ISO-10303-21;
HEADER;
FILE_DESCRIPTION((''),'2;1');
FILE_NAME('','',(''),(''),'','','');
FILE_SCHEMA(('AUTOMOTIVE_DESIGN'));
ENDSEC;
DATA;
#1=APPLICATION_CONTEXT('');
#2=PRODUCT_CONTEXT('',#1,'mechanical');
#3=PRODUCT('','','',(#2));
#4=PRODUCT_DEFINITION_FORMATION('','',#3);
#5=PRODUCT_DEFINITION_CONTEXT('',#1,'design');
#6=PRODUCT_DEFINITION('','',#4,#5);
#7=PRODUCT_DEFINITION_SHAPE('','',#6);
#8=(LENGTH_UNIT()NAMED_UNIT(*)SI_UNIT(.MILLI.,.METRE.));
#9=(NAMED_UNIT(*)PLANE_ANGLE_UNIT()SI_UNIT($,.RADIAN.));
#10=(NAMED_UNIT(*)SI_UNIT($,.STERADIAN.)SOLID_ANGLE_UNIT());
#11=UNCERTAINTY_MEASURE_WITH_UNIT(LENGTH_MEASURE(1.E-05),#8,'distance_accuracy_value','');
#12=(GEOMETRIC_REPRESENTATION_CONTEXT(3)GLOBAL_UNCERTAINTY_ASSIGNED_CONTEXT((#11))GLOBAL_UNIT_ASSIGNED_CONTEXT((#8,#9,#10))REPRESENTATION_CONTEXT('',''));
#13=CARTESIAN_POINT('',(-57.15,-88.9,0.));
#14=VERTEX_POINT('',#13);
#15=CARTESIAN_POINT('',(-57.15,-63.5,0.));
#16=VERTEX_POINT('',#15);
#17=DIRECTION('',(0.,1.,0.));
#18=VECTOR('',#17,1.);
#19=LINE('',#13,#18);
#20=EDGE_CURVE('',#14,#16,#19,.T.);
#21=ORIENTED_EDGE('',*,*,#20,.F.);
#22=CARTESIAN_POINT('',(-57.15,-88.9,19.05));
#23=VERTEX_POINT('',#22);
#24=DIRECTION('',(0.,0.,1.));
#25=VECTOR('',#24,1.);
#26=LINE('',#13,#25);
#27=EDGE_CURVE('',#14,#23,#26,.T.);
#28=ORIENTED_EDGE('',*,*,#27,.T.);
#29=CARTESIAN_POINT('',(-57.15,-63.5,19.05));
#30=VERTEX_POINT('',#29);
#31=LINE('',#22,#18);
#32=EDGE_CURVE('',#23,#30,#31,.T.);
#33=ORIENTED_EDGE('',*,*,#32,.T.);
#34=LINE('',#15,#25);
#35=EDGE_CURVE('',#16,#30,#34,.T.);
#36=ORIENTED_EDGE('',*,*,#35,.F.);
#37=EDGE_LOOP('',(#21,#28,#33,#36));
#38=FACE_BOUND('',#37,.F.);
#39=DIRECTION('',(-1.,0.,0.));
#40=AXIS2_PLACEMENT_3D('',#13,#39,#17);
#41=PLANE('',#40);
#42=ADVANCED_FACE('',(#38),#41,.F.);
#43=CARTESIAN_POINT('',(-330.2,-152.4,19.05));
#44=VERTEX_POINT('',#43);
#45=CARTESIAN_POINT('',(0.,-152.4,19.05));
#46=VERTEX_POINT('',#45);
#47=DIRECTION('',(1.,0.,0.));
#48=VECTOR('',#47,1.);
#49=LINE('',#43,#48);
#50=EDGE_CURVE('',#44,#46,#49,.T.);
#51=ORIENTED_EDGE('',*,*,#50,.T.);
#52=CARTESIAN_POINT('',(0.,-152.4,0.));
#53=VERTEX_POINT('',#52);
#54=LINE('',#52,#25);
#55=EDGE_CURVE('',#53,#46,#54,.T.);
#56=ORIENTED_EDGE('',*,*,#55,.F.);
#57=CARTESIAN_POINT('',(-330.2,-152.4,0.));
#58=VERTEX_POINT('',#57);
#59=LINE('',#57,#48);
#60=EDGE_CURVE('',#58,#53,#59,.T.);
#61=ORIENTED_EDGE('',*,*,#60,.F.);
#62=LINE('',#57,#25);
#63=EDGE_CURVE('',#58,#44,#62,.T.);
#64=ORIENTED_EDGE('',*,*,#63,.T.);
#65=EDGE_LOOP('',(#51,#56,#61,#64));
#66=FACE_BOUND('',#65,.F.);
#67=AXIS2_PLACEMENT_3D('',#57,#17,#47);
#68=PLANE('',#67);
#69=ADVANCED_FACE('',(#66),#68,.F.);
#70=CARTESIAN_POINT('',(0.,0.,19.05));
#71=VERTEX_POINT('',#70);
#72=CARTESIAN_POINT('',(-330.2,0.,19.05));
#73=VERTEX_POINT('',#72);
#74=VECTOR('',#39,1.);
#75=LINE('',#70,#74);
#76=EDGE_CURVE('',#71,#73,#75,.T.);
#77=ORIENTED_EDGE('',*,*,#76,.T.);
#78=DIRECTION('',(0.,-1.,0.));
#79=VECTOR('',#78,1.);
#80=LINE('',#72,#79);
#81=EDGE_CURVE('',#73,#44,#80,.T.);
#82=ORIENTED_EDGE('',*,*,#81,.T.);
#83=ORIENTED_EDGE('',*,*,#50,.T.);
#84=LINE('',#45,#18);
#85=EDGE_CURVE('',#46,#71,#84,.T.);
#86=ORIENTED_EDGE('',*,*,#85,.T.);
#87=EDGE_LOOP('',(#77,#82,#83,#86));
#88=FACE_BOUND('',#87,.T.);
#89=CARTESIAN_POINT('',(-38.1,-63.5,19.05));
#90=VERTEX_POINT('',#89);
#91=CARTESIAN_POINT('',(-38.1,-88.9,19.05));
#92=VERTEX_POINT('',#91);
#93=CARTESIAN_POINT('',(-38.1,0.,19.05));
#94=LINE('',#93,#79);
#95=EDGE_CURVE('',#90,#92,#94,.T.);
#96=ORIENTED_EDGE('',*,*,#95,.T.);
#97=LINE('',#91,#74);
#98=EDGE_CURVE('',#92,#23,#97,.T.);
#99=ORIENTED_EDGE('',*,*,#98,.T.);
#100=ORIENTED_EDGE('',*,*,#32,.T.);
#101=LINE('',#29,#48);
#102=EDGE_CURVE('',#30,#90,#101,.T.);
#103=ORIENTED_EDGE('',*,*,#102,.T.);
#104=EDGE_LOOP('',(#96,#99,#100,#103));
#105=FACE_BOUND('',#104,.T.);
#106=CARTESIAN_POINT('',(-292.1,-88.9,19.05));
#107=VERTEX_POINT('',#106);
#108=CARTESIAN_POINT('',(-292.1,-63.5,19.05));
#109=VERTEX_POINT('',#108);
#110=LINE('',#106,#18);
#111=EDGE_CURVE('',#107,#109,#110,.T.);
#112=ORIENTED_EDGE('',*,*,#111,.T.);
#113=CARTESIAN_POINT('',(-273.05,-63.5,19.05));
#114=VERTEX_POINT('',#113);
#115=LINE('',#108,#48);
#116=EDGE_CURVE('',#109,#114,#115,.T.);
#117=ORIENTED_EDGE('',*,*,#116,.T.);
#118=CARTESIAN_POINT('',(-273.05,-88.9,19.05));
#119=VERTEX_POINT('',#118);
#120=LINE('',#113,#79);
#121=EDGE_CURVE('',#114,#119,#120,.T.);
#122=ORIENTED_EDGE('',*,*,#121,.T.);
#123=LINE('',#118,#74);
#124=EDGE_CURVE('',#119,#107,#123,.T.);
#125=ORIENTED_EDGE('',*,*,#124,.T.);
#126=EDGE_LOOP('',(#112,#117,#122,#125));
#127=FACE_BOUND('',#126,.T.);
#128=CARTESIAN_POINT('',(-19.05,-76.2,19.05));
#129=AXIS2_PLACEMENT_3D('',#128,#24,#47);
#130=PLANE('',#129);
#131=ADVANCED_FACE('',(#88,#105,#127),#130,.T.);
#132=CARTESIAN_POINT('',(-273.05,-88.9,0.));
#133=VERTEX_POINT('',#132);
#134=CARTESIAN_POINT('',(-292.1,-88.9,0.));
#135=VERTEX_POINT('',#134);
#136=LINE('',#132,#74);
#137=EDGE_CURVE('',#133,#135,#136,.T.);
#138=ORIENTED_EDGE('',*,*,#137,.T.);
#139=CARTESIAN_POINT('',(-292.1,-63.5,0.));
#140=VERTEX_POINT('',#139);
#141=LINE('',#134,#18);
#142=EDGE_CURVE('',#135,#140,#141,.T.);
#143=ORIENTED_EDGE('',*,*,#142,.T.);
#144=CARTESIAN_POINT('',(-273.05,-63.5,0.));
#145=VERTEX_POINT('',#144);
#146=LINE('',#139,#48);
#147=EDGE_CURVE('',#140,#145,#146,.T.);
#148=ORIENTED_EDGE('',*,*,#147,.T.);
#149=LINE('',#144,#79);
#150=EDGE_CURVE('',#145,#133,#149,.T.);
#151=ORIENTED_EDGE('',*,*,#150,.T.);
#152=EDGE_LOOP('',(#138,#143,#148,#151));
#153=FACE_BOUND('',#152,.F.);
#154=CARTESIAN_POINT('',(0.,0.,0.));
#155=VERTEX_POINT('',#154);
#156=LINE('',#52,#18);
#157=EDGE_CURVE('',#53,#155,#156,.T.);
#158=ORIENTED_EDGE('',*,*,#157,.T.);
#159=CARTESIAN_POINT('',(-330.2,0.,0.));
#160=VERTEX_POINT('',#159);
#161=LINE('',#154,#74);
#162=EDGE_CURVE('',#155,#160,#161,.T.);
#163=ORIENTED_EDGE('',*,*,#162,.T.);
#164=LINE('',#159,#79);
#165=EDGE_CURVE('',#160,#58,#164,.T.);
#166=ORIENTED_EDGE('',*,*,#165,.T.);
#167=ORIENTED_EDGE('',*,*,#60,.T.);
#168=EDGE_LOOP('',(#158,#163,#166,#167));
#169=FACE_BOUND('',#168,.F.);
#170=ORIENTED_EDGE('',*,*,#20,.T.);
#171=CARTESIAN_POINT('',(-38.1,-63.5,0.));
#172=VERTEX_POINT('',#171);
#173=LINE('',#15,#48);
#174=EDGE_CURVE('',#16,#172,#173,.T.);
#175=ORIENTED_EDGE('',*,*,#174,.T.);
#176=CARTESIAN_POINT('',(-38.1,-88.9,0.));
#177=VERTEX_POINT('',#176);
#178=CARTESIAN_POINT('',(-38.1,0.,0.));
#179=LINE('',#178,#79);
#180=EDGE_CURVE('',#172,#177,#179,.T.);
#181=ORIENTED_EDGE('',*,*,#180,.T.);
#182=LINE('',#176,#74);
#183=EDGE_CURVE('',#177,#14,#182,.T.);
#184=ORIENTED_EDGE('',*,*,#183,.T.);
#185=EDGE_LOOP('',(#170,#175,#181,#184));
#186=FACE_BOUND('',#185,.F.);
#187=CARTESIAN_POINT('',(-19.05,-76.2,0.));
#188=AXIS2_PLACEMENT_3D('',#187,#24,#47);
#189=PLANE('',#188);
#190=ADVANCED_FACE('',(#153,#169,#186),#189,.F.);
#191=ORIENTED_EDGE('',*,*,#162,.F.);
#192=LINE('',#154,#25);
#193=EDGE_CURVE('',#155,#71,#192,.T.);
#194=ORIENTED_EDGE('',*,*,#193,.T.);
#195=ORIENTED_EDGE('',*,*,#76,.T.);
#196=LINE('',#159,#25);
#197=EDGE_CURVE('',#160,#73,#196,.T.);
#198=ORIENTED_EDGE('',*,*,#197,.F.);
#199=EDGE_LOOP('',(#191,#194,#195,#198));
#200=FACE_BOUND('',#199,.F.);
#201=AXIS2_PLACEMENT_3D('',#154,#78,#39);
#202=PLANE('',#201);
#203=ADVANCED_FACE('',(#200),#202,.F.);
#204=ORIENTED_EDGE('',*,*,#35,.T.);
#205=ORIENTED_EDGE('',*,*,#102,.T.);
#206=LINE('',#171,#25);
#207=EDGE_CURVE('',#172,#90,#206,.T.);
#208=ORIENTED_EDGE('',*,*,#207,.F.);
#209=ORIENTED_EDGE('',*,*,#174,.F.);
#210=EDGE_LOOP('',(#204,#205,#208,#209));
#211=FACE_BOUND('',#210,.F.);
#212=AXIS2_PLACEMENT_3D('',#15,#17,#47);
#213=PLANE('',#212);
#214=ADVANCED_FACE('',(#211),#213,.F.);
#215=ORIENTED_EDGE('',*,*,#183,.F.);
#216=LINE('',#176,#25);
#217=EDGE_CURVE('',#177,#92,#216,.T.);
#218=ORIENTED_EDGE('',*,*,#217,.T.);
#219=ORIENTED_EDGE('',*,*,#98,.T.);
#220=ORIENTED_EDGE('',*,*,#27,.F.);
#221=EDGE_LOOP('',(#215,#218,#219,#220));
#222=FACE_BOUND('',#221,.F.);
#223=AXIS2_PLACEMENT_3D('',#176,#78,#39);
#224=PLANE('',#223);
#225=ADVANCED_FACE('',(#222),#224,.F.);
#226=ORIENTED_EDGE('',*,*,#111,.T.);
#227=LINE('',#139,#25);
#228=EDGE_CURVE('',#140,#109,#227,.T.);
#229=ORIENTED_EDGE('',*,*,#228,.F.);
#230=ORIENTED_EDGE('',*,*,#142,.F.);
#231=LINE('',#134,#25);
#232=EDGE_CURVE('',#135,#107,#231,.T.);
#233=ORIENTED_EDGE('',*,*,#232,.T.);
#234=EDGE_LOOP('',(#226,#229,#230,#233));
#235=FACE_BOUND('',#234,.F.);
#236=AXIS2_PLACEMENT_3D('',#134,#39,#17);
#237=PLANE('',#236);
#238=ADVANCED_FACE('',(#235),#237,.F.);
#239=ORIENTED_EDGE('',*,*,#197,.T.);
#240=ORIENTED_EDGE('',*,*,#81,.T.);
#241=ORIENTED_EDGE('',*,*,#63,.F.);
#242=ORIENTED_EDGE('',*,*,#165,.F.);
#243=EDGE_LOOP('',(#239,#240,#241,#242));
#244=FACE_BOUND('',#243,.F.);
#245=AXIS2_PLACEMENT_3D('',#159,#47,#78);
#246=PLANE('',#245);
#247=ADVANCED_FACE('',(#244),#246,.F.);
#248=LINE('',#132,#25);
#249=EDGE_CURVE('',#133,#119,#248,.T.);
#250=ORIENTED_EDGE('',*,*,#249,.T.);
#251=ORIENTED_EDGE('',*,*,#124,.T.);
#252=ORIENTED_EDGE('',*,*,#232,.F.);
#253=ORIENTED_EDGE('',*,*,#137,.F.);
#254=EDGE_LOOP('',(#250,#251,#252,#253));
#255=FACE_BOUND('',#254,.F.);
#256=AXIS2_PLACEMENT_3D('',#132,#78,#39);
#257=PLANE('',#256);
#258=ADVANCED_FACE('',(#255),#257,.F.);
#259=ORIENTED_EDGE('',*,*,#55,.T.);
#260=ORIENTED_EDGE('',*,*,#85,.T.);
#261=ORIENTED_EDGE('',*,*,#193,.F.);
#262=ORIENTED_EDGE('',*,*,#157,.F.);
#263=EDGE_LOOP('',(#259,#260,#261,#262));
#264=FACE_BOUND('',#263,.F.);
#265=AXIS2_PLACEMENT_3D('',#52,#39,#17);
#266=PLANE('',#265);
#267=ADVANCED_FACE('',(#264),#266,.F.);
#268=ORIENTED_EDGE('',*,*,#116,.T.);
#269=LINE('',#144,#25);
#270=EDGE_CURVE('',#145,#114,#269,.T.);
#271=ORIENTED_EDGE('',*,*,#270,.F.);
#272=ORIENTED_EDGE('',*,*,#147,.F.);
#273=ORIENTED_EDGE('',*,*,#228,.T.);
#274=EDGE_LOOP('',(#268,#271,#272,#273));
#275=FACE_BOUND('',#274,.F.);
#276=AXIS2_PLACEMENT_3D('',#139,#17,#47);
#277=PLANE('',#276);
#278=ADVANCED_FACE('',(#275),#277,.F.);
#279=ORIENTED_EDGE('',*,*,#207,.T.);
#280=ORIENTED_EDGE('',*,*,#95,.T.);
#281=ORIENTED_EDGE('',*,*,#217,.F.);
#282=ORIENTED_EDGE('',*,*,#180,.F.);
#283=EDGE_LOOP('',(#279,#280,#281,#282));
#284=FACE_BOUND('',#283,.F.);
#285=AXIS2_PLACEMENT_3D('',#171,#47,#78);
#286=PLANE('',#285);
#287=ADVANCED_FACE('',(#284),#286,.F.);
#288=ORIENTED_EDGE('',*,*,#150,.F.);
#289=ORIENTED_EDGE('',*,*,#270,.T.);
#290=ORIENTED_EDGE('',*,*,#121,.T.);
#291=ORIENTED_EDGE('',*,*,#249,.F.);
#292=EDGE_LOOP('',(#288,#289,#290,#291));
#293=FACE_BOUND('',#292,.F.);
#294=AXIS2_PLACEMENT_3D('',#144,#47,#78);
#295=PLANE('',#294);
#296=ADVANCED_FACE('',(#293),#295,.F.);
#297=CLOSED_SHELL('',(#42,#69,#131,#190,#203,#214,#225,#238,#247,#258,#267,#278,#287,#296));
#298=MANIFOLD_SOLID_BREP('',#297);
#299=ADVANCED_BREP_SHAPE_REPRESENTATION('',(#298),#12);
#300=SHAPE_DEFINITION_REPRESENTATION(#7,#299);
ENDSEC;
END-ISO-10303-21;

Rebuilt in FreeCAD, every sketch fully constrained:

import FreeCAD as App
import Part
import Sketcher

V = App.Vector
Q = App.Units.Quantity


def add_polygon(sketch, points):
    """Adds a closed chain of lines whose ends are joined by coincident constraints."""
    first, n = sketch.GeometryCount, len(points)
    for a, b in zip(points, points[1:] + points[:1]):
        sketch.addGeometry(Part.LineSegment(App.Vector(*a, 0), App.Vector(*b, 0)), False)
    for i in range(n):
        sketch.addConstraint(Sketcher.Constraint("Coincident", first + i, 2, first + (i + 1) % n, 1))

doc = App.newDocument("Part")
body = doc.addObject("PartDesign::Body", "Body")

sketch1 = doc.addObject("Sketcher::SketchObject", "Sketch")
body.addObject(sketch1)
sketch1.AttachmentSupport = (doc.XY_Plane, [""])
sketch1.MapMode = "FlatFace"
add_polygon(sketch1, [(0, -152), (0, 0), (-330, 0), (-330, -152)])
add_polygon(sketch1, [(-292, -64), (-273, -64), (-273, -89), (-292, -89)])
add_polygon(sketch1, [(-38, -64), (-38, -89), (-57, -89), (-57, -64)])
sketch1.addConstraint(Sketcher.Constraint("Vertical", 0))
sketch1.addConstraint(Sketcher.Constraint("Horizontal", 1))
sketch1.addConstraint(Sketcher.Constraint("Vertical", 2))
sketch1.addConstraint(Sketcher.Constraint("Horizontal", 3))
sketch1.addConstraint(Sketcher.Constraint("Horizontal", 4))
sketch1.addConstraint(Sketcher.Constraint("Vertical", 5))
sketch1.addConstraint(Sketcher.Constraint("Horizontal", 6))
sketch1.addConstraint(Sketcher.Constraint("Vertical", 7))
sketch1.addConstraint(Sketcher.Constraint("Vertical", 8))
sketch1.addConstraint(Sketcher.Constraint("Horizontal", 9))
sketch1.addConstraint(Sketcher.Constraint("Vertical", 10))
sketch1.addConstraint(Sketcher.Constraint("Horizontal", 11))
sketch1.addConstraint(Sketcher.Constraint("Coincident", 0, 2, -1, 1))
sketch1.addConstraint(Sketcher.Constraint("Horizontal", 6, 2, 8, 2))
sketch1.addConstraint(Sketcher.Constraint("Horizontal", 7, 2, 10, 2))
sketch1.addConstraint(Sketcher.Constraint("Equal", 6, 9))
sketch1.addConstraint(Sketcher.Constraint("DistanceX", 1, 2, 1, 1, Q("13 in")))
sketch1.addConstraint(Sketcher.Constraint("DistanceY", 0, 1, 0, 2, Q("6 in")))
sketch1.addConstraint(Sketcher.Constraint("DistanceY", 5, 2, 5, 1, Q("1 in")))
sketch1.addConstraint(Sketcher.Constraint("DistanceX", 6, 2, 8, 2, Q("10 in")))
sketch1.addConstraint(Sketcher.Constraint("DistanceX", 4, 1, 4, 2, Q("0.75 in")))
sketch1.addConstraint(Sketcher.Constraint("DistanceY", 4, 2, -1, 1, Q("2.5 in")))
sketch1.addConstraint(Sketcher.Constraint("DistanceX", 6, 2, -1, 1, Q("11.5 in")))
pad1 = doc.addObject("PartDesign::Pad", "Pad")
body.addObject(pad1)
pad1.Profile = sketch1
pad1.Length = Q("0.75 in")

doc.recompute()
